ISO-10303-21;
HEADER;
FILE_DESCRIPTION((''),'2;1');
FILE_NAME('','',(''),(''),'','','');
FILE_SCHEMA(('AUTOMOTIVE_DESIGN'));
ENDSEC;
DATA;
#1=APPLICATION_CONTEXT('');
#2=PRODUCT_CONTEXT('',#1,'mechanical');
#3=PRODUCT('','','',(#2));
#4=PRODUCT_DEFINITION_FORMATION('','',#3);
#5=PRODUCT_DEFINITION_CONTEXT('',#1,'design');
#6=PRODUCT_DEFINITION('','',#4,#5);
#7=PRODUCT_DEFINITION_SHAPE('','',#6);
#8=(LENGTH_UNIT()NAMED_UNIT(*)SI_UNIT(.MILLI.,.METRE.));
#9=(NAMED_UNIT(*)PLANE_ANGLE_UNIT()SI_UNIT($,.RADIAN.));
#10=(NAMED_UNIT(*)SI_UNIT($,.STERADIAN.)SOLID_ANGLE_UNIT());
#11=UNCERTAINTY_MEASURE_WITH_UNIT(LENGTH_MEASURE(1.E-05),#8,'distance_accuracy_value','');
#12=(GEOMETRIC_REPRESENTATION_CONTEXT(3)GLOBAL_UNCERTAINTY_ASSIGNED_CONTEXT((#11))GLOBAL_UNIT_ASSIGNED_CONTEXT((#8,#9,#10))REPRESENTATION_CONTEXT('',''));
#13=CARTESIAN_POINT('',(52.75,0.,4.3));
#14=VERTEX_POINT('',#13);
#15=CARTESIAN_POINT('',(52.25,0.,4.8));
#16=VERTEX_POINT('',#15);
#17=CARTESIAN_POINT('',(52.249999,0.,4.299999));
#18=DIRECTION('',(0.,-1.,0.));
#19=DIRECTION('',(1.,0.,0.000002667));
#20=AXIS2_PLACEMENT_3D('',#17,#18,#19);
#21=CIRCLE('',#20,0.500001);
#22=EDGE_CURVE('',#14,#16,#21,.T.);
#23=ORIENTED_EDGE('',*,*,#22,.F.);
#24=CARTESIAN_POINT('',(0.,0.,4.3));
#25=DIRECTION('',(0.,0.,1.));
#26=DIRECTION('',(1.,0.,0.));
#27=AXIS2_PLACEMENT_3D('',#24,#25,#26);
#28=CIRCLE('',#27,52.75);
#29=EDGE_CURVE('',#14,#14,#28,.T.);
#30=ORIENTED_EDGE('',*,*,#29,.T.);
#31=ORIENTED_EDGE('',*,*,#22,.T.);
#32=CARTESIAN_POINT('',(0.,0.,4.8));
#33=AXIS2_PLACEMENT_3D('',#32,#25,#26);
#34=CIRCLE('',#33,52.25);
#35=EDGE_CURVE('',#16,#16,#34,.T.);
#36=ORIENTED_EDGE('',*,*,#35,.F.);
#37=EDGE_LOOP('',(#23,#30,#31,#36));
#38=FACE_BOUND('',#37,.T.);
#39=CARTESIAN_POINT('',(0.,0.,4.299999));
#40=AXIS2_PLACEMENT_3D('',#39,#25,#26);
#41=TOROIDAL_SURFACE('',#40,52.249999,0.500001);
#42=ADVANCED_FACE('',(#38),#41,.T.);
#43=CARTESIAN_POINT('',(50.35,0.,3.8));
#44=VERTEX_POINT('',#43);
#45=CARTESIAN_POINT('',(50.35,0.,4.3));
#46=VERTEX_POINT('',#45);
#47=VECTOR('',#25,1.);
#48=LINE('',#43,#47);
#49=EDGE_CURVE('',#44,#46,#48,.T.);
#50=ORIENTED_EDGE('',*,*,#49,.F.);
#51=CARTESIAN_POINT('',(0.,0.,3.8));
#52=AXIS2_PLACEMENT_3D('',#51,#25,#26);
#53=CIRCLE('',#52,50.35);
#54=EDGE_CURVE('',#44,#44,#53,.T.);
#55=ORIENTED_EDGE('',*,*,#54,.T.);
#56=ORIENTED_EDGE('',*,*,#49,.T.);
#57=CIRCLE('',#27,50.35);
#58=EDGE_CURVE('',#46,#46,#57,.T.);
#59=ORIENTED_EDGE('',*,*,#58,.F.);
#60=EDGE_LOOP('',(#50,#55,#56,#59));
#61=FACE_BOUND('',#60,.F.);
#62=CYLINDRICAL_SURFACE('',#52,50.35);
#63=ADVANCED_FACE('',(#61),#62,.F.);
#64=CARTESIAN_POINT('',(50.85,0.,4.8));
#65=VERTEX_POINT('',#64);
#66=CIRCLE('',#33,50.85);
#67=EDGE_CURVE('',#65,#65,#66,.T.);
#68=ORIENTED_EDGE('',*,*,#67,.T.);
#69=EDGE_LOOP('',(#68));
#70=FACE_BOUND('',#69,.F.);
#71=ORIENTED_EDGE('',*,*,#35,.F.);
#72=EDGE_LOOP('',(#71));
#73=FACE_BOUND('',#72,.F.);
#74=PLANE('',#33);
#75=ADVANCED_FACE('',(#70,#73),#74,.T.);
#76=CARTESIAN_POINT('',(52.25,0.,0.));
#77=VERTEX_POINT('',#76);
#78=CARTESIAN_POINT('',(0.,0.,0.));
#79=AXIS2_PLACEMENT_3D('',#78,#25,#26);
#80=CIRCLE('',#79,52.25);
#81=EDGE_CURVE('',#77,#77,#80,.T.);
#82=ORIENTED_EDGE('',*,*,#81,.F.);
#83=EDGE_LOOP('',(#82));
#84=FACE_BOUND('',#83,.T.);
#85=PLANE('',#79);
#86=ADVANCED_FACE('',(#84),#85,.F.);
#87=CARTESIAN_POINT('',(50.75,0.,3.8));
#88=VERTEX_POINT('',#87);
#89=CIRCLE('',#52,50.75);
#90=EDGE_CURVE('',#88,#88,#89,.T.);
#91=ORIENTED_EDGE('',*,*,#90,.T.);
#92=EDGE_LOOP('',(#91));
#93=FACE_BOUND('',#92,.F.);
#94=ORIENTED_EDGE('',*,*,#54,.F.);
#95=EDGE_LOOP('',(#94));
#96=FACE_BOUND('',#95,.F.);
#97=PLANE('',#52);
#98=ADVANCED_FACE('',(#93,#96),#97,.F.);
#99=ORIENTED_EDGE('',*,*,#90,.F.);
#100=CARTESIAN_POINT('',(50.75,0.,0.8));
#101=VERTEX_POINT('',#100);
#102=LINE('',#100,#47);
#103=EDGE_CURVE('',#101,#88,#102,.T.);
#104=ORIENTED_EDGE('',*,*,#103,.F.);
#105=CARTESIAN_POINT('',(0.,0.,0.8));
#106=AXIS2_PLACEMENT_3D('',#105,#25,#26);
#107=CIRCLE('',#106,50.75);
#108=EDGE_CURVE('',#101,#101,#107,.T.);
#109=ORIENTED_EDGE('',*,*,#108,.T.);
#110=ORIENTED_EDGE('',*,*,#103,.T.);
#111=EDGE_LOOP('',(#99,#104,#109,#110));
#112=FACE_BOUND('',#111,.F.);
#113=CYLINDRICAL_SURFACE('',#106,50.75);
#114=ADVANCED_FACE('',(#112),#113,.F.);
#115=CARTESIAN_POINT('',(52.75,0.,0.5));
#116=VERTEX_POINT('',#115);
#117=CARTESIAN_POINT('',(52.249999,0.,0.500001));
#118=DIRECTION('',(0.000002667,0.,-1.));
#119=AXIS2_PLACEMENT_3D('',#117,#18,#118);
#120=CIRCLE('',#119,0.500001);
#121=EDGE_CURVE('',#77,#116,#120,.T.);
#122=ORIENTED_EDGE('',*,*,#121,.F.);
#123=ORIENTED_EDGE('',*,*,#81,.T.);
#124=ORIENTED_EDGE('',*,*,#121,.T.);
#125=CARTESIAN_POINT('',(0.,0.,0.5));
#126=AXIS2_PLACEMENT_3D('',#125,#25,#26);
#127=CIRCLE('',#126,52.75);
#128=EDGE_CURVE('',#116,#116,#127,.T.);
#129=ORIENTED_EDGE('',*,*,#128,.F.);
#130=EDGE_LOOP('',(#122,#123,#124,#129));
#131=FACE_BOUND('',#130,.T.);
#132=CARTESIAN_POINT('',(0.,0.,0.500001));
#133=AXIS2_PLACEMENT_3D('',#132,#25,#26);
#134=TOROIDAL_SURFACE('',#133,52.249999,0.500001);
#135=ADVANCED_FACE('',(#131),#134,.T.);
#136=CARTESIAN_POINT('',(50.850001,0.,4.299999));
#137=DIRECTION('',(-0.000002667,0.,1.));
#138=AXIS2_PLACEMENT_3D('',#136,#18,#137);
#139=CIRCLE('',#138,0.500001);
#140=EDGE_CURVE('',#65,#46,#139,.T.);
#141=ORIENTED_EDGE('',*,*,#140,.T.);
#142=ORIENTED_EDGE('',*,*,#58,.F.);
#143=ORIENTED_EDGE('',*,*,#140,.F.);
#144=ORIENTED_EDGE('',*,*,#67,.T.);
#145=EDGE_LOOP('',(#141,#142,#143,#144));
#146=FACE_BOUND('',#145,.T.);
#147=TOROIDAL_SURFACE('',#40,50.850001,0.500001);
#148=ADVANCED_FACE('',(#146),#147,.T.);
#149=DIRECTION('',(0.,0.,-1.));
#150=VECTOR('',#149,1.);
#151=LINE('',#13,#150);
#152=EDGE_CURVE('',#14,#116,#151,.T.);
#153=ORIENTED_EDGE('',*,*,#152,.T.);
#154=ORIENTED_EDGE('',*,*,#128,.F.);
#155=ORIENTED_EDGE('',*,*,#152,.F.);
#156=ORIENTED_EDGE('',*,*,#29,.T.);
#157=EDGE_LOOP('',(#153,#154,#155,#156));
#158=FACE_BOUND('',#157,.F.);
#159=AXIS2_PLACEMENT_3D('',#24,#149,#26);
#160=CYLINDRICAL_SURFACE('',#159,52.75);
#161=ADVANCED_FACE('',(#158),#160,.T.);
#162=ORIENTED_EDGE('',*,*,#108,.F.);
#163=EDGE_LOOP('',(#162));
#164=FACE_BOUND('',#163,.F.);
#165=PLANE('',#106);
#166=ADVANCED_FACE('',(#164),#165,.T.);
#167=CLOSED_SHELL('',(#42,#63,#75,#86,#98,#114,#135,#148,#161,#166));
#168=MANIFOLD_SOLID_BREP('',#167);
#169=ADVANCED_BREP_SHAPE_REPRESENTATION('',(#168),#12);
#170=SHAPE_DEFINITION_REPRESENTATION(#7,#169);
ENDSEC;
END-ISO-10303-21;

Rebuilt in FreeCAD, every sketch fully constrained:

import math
import FreeCAD as App
import Part
import Sketcher
from FreeCAD import Vector
Q = App.Units.Quantity

doc = App.newDocument("Part")
body = doc.addObject("PartDesign::Body", "Body")

sketch1 = doc.addObject("Sketcher::SketchObject", "Sketch")
body.addObject(sketch1)
sketch1.AttachmentSupport = (doc.XZ_Plane, [""])
sketch1.MapMode = "FlatFace"
sketch1.addGeometry([
    Part.LineSegment(Vector(0, 0, 0), Vector(52.25, 0, 0)),
    Part.ArcOfCircle(Part.Circle(Vector(52.25, 0.5, 0), Vector(0, 0, 1), 0.5), math.radians(-90), math.radians(0)),
    Part.LineSegment(Vector(52.75, 0.5, 0), Vector(52.75, 4.3, 0)),
    Part.ArcOfCircle(Part.Circle(Vector(52.25, 4.3, 0), Vector(0, 0, 1), 0.5), math.radians(0), math.radians(90)),
    Part.LineSegment(Vector(52.25, 4.8, 0), Vector(50.85, 4.8, 0)),
    Part.ArcOfCircle(Part.Circle(Vector(50.85, 4.3, 0), Vector(0, 0, 1), 0.5), math.radians(90), math.radians(180)),
    Part.LineSegment(Vector(50.35, 4.3, 0), Vector(50.35, 3.8, 0)),
    Part.LineSegment(Vector(50.35, 3.8, 0), Vector(50.75, 3.8, 0)),
    Part.LineSegment(Vector(50.75, 3.8, 0), Vector(50.75, 0.8, 0)),
    Part.LineSegment(Vector(50.75, 0.8, 0), Vector(0, 0.8, 0)),
    Part.LineSegment(Vector(0, 0.8, 0), Vector(0, 0, 0)),
], False)
sketch1.addConstraint([
    Sketcher.Constraint("Coincident", 0, 2, 1, 1),
    Sketcher.Constraint("Coincident", 1, 2, 2, 1),
    Sketcher.Constraint("Coincident", 2, 2, 3, 1),
    Sketcher.Constraint("Coincident", 3, 2, 4, 1),
    Sketcher.Constraint("Coincident", 4, 2, 5, 1),
    Sketcher.Constraint("Coincident", 5, 2, 6, 1),
    Sketcher.Constraint("Coincident", 6, 2, 7, 1),
    Sketcher.Constraint("Coincident", 7, 2, 8, 1),
    Sketcher.Constraint("Coincident", 8, 2, 9, 1),
    Sketcher.Constraint("Coincident", 9, 2, 10, 1),
    Sketcher.Constraint("Coincident", 10, 2, 0, 1),
    Sketcher.Constraint("Horizontal", 0),
    Sketcher.Constraint("Vertical", 2),
    Sketcher.Constraint("Horizontal", 4),
    Sketcher.Constraint("Vertical", 6),
    Sketcher.Constraint("Horizontal", 7),
    Sketcher.Constraint("Vertical", 8),
    Sketcher.Constraint("Horizontal", 9),
    Sketcher.Constraint("Vertical", 10),
    Sketcher.Constraint("Coincident", 10, 2, -1, 1),
    Sketcher.Constraint("Equal", 1, 3),
    Sketcher.Constraint("Equal", 3, 5),
    Sketcher.Constraint("Horizontal", 5, 3, 2, 2),
    Sketcher.Constraint("Horizontal", 2, 2, 5, 2),
    Sketcher.Constraint("Vertical", 3, 3, 0, 2),
    Sketcher.Constraint("Vertical", 0, 2, 3, 2),
    Sketcher.Constraint("Vertical", 5, 3, 4, 2),
    Sketcher.Constraint("Radius", 1, Q("0.500001 mm")),
    Sketcher.Constraint("DistanceY", 8, 2, 8, 1, Q("3 mm")),
    Sketcher.Constraint("DistanceX", 4, 2, 4, 1, Q("1.4 mm")),
    Sketcher.Constraint("DistanceX", 7, 1, 7, 2, Q("0.4 mm")),
    Sketcher.Constraint("DistanceY", 2, 1, 2, 2, Q("3.8 mm")),
    Sketcher.Constraint("DistanceY", 6, 2, 6, 1, Q("0.5 mm")),
    Sketcher.Constraint("DistanceY", 10, 2, 10, 1, Q("0.8 mm")),
    Sketcher.Constraint("DistanceX", 0, 1, 0, 2, Q("52.25 mm")),
])
revolution = doc.addObject("PartDesign::Revolution", "Revolution")
body.addObject(revolution)
revolution.Profile = sketch1
revolution.ReferenceAxis = (sketch1, ["V_Axis"])
revolution.Angle = 360

doc.recompute()
